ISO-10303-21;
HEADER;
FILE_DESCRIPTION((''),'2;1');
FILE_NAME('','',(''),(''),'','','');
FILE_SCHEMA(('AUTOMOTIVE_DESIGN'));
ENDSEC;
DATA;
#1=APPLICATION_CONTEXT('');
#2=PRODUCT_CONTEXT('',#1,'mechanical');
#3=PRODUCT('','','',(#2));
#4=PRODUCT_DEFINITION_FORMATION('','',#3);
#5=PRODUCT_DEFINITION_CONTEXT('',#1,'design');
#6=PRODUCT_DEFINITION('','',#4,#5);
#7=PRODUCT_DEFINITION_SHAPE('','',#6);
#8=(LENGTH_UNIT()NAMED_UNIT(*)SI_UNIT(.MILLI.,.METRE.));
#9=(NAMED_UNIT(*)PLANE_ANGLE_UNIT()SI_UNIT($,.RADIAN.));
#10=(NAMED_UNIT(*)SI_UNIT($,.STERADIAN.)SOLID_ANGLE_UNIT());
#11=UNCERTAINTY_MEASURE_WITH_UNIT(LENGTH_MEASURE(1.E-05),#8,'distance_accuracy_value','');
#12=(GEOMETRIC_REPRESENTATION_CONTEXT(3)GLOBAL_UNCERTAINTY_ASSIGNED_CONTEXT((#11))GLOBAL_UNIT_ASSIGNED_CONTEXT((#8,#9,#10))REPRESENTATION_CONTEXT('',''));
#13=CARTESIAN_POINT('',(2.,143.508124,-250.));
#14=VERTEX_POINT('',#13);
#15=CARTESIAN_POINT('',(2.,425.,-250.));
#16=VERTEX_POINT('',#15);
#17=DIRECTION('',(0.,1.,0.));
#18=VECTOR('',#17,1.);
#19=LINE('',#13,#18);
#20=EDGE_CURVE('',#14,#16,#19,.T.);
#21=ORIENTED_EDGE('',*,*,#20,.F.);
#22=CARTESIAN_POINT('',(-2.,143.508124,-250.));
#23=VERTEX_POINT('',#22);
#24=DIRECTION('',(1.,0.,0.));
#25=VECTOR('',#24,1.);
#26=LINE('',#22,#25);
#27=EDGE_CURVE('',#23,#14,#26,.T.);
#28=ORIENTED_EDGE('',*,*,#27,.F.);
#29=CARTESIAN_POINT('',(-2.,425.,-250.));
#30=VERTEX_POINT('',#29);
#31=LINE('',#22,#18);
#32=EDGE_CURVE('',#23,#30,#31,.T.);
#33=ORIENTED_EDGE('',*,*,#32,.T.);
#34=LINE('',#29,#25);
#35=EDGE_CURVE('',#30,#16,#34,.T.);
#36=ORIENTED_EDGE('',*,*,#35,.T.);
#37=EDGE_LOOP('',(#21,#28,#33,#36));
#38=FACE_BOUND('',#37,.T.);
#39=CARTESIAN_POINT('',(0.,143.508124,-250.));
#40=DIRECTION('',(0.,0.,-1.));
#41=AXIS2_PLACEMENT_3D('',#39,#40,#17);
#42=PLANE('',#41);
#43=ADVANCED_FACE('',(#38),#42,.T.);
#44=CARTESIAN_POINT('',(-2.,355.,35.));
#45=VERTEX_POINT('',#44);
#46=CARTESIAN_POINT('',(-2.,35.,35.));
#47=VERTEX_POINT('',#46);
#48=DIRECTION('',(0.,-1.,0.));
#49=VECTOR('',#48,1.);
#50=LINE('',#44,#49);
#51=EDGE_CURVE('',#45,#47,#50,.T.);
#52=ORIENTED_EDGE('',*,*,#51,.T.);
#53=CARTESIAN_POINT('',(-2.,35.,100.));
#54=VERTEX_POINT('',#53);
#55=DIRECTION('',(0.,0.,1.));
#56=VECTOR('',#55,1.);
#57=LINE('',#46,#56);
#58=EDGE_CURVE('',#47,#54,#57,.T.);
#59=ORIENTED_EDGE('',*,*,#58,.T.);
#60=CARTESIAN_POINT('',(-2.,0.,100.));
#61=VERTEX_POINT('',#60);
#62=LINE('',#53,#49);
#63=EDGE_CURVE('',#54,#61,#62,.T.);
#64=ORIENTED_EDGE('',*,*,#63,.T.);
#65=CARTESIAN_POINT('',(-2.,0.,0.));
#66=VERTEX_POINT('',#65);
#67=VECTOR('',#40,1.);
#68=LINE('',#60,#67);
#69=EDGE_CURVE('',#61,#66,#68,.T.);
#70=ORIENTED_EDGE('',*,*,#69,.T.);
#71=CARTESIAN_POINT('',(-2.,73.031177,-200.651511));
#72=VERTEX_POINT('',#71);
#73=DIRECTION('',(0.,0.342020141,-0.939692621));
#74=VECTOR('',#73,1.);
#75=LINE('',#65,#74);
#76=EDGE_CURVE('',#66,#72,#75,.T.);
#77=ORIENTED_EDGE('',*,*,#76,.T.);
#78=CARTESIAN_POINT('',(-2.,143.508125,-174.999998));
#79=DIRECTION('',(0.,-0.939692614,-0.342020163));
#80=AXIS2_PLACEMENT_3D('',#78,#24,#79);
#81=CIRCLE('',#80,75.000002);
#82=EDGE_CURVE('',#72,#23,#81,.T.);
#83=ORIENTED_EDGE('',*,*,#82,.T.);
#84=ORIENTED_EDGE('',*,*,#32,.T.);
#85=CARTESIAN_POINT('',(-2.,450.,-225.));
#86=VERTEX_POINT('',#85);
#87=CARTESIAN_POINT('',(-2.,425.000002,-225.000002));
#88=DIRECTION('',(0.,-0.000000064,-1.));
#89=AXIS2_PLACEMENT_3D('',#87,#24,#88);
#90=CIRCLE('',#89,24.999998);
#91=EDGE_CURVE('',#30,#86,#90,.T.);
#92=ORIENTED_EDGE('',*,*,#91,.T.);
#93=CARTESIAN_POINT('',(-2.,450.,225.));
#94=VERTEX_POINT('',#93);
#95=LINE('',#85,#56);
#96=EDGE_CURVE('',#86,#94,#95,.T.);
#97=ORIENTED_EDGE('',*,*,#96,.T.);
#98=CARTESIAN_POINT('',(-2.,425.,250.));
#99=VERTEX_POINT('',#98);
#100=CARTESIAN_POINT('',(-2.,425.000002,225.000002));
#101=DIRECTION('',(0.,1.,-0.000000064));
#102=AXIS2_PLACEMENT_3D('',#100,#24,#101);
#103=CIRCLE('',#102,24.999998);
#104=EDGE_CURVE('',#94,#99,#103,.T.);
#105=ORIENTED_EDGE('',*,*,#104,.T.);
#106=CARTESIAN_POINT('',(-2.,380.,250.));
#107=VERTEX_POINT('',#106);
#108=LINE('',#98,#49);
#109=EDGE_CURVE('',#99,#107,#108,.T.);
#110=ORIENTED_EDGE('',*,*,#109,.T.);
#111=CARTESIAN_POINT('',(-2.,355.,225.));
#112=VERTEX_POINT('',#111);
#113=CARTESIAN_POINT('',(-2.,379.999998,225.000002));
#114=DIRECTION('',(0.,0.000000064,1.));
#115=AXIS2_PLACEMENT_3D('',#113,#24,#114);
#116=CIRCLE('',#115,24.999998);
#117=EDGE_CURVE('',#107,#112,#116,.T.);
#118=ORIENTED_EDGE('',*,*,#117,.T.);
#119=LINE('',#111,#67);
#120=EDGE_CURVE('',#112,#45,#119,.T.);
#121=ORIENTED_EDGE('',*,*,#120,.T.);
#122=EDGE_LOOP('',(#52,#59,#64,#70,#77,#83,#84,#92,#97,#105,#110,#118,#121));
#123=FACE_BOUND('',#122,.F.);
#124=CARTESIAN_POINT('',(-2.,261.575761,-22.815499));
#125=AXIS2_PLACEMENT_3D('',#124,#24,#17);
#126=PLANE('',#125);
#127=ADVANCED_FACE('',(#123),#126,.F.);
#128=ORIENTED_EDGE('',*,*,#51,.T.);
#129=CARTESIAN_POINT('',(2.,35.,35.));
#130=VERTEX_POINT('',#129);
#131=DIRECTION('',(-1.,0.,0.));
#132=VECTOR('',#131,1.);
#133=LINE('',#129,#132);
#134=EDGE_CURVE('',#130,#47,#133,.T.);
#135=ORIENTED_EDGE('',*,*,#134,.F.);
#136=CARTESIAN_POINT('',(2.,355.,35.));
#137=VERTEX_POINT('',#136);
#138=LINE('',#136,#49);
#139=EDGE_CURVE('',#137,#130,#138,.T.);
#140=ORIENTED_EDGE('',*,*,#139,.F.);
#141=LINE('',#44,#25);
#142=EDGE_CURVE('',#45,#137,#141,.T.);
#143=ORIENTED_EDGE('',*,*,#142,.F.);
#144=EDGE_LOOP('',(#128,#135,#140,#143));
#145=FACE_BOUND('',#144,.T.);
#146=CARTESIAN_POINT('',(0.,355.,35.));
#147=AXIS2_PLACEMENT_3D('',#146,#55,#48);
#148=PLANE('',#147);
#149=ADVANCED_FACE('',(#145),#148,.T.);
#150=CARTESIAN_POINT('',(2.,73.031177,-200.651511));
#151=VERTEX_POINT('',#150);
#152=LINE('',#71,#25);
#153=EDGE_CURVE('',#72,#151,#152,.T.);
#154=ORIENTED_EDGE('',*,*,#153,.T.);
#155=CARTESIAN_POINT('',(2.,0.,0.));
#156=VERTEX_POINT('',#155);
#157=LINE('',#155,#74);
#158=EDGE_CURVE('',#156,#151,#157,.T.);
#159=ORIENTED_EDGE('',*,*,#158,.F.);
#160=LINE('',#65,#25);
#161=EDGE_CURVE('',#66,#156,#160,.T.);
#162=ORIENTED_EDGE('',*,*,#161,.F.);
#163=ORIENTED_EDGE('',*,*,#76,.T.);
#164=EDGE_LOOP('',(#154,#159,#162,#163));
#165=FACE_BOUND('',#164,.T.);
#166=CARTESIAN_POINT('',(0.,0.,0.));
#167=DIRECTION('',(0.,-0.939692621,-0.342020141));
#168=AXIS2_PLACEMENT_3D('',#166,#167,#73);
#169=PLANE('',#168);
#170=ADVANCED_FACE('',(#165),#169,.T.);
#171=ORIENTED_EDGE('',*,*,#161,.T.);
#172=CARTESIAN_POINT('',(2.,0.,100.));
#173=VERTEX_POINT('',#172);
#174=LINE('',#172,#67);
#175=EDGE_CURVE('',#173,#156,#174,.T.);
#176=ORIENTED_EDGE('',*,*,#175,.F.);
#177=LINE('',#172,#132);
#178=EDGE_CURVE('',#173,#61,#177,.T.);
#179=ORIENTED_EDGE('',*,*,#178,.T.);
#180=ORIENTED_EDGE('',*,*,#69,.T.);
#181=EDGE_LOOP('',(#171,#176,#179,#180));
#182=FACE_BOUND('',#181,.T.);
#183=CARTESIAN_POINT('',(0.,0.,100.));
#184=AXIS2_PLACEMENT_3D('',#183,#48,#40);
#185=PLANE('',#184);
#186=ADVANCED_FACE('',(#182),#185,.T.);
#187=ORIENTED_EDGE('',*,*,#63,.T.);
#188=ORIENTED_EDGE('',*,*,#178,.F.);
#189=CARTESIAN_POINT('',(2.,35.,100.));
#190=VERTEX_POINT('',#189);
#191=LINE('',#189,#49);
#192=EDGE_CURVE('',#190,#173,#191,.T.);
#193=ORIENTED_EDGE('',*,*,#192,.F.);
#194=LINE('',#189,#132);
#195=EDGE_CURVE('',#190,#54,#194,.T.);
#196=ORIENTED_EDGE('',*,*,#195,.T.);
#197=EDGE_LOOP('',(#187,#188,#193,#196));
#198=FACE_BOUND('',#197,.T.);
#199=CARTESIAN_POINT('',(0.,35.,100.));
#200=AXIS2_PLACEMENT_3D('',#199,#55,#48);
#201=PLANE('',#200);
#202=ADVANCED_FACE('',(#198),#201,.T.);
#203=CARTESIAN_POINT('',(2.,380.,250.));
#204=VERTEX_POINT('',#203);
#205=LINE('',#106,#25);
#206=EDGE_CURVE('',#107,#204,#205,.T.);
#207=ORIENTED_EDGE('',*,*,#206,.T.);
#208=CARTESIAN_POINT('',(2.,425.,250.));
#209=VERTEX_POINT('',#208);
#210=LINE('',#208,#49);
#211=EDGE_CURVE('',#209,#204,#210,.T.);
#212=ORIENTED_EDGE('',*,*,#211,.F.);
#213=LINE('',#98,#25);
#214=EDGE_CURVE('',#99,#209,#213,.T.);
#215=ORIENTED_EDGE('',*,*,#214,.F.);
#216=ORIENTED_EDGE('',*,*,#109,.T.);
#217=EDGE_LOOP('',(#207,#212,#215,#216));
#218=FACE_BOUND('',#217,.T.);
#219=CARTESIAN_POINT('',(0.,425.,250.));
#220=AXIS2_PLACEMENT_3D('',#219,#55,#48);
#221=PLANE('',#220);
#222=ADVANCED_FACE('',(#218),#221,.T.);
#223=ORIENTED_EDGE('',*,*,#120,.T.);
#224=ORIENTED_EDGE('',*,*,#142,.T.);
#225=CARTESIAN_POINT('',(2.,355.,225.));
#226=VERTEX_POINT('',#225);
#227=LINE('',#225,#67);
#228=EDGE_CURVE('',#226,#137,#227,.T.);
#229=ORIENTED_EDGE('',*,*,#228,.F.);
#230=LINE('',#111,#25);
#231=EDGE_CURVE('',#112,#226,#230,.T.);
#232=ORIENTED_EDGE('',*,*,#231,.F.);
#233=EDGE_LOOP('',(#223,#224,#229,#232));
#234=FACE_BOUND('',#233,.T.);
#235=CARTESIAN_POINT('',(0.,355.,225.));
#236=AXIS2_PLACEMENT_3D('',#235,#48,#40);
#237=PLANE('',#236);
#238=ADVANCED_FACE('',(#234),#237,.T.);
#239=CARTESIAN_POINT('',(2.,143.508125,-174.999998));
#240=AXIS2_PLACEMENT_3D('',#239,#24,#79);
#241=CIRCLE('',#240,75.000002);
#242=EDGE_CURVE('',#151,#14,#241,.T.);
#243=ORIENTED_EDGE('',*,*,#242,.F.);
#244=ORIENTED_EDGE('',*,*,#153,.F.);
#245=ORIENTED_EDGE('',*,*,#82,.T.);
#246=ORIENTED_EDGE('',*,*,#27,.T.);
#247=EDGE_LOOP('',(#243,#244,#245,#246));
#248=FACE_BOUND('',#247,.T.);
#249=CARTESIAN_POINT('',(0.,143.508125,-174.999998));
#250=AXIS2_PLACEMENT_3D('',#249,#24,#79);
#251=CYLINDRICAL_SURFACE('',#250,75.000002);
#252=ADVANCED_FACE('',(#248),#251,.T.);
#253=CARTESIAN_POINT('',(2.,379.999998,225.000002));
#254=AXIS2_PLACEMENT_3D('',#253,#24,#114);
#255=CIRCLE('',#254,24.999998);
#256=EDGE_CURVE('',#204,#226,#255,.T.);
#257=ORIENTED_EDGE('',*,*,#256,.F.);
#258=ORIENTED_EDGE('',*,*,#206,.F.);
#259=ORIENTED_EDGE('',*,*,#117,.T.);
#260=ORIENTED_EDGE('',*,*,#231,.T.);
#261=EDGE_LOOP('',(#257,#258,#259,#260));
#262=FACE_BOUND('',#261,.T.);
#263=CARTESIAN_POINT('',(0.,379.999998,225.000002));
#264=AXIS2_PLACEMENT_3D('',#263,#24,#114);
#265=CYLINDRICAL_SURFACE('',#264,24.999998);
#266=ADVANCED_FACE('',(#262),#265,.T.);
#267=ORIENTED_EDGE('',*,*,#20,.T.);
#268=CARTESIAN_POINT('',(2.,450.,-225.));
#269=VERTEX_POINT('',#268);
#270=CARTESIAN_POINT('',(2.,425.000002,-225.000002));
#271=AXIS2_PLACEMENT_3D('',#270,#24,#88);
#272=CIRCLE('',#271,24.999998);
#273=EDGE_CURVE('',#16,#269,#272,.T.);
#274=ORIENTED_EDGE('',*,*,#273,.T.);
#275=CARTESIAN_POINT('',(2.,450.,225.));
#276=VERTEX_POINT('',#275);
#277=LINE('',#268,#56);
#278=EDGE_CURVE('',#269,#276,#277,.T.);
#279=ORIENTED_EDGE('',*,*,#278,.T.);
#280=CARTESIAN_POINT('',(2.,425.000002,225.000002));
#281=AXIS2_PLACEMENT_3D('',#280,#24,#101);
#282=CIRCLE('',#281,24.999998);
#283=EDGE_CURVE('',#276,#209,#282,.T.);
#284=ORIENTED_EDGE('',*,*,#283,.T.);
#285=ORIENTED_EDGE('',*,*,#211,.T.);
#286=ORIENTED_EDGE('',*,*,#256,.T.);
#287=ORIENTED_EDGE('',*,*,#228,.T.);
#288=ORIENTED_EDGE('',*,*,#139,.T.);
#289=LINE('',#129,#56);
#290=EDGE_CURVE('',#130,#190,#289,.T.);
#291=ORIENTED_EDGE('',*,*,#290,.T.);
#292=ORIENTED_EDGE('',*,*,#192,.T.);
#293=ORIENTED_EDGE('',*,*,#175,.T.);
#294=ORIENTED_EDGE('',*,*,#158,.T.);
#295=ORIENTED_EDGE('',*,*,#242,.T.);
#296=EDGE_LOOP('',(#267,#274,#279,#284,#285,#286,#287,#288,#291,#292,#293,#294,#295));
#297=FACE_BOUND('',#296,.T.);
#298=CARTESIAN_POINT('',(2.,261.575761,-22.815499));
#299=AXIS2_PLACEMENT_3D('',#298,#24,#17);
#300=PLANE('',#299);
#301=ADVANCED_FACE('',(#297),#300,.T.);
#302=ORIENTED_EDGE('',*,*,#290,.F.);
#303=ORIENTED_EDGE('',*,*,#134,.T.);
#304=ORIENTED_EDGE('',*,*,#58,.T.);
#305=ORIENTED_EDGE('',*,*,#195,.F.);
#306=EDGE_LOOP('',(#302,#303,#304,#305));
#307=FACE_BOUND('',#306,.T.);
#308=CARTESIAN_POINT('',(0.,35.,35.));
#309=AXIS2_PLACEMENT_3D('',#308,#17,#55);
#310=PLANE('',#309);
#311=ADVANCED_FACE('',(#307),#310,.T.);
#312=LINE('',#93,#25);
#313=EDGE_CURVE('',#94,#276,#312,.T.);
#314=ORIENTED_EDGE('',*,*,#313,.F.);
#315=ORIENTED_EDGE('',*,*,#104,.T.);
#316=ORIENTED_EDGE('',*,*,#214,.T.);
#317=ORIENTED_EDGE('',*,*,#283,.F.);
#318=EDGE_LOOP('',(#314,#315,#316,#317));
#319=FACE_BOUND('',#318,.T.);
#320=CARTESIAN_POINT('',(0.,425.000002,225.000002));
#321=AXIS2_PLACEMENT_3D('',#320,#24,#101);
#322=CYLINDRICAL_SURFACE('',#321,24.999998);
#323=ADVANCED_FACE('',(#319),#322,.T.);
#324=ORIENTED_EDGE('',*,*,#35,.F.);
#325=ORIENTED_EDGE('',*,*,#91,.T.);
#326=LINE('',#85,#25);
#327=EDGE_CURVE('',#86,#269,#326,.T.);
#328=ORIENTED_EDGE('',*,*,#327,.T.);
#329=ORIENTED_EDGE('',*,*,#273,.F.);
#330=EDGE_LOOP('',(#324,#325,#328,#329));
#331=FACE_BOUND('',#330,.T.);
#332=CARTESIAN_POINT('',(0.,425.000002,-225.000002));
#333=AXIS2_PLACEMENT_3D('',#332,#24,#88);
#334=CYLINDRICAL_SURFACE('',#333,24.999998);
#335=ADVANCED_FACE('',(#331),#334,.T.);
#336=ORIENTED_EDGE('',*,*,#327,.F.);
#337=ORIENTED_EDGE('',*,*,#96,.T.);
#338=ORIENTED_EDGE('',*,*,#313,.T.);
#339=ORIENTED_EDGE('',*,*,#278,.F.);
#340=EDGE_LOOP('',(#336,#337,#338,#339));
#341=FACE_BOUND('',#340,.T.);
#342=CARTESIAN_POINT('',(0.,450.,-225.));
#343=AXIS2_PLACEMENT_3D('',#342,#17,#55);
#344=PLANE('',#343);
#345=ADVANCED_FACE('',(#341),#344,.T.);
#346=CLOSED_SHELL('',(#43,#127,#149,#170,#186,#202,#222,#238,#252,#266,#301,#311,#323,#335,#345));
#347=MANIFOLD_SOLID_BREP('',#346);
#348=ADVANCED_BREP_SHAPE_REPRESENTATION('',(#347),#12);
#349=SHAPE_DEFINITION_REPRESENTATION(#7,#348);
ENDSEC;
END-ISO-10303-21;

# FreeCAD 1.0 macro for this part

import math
import FreeCAD as App
import Part
import Sketcher
from FreeCAD import Vector
Q = App.Units.Quantity

doc = App.newDocument("Part")
body = doc.addObject("PartDesign::Body", "Body")

# Sketch on YZ plane
sketch1 = doc.addObject("Sketcher::SketchObject", "Sketch")
body.addObject(sketch1)
sketch1.AttachmentSupport = (doc.YZ_Plane, [""])
sketch1.MapMode = "FlatFace"
sketch1.addGeometry([
    Part.LineSegment(Vector(0, 100, 0), Vector(0, 0, 0)),  # 0
    Part.LineSegment(Vector(0, 0, 0), Vector(73, -201, 0)),  # 1
    Part.ArcOfCircle(Part.Circle(Vector(144, -175, 0), Vector(0, 0, 1), 75), math.radians(-160), math.radians(-90)),  # 2
    Part.LineSegment(Vector(144, -250, 0), Vector(425, -250, 0)),  # 3
    Part.ArcOfCircle(Part.Circle(Vector(425, -225, 0), Vector(0, 0, 1), 25), math.radians(-90), math.radians(0)),  # 4
    Part.LineSegment(Vector(450, -225, 0), Vector(450, 225, 0)),  # 5
    Part.ArcOfCircle(Part.Circle(Vector(425, 225, 0), Vector(0, 0, 1), 25), math.radians(0), math.radians(90)),  # 6
    Part.LineSegment(Vector(425, 250, 0), Vector(380, 250, 0)),  # 7
    Part.ArcOfCircle(Part.Circle(Vector(380, 225, 0), Vector(0, 0, 1), 25), math.radians(90), math.radians(180)),  # 8
    Part.LineSegment(Vector(355, 225, 0), Vector(355, 35, 0)),  # 9
    Part.LineSegment(Vector(355, 35, 0), Vector(35, 35, 0)),  # 10
    Part.LineSegment(Vector(35, 35, 0), Vector(35, 100, 0)),  # 11
    Part.LineSegment(Vector(35, 100, 0), Vector(0, 100, 0)),  # 12
], False)
sketch1.addConstraint([
    Sketcher.Constraint("Coincident", 0, 2, 1, 1),
    Sketcher.Constraint("Tangent", 1, 2, 2, 1),
    Sketcher.Constraint("Tangent", 2, 2, 3, 1),
    Sketcher.Constraint("Tangent", 3, 2, 4, 1),
    Sketcher.Constraint("Tangent", 4, 2, 5, 1),
    Sketcher.Constraint("Tangent", 5, 2, 6, 1),
    Sketcher.Constraint("Tangent", 6, 2, 7, 1),
    Sketcher.Constraint("Tangent", 7, 2, 8, 1),
    Sketcher.Constraint("Tangent", 8, 2, 9, 1),
    Sketcher.Constraint("Coincident", 9, 2, 10, 1),
    Sketcher.Constraint("Coincident", 10, 2, 11, 1),
    Sketcher.Constraint("Coincident", 11, 2, 12, 1),
    Sketcher.Constraint("Coincident", 12, 2, 0, 1),
    Sketcher.Constraint("Vertical", 0),
    Sketcher.Constraint("Horizontal", 3),
    Sketcher.Constraint("Vertical", 5),
    Sketcher.Constraint("Horizontal", 7),
    Sketcher.Constraint("Vertical", 9),
    Sketcher.Constraint("Horizontal", 10),
    Sketcher.Constraint("Vertical", 11),
    Sketcher.Constraint("Horizontal", 12),
    Sketcher.Constraint("Coincident", 0, 2, -1, 1),
    Sketcher.Constraint("Equal", 4, 6),
    Sketcher.Constraint("Equal", 6, 8),
    Sketcher.Constraint("Radius", 2, 75.000002),
    Sketcher.Constraint("Radius", 4, 24.999998),
    Sketcher.Constraint("DistanceX", 7, 2, 7, 1, 45.0),
    Sketcher.Constraint("DistanceX", 10, 2, 10, 1, 320.0),
    Sketcher.Constraint("DistanceX", 12, 2, 12, 1, 35.0),
    Sketcher.Constraint("DistanceY", 0, 2, 0, 1, 100.0),
    Sketcher.Constraint("DistanceY", 5, 1, 5, 2, 450.0),
    Sketcher.Constraint("DistanceY", 9, 2, 9, 1, 190.0),
    Sketcher.Constraint("DistanceY", 11, 1, 11, 2, 65.0),
    Sketcher.Constraint("Angle", 1, Q("-70 deg")),
])
pad1 = doc.addObject("PartDesign::Pad", "Pad")
body.addObject(pad1)
pad1.Profile = sketch1
pad1.Type = "TwoLengths"
pad1.Length = 2
pad1.Length2 = 2

doc.recompute()
